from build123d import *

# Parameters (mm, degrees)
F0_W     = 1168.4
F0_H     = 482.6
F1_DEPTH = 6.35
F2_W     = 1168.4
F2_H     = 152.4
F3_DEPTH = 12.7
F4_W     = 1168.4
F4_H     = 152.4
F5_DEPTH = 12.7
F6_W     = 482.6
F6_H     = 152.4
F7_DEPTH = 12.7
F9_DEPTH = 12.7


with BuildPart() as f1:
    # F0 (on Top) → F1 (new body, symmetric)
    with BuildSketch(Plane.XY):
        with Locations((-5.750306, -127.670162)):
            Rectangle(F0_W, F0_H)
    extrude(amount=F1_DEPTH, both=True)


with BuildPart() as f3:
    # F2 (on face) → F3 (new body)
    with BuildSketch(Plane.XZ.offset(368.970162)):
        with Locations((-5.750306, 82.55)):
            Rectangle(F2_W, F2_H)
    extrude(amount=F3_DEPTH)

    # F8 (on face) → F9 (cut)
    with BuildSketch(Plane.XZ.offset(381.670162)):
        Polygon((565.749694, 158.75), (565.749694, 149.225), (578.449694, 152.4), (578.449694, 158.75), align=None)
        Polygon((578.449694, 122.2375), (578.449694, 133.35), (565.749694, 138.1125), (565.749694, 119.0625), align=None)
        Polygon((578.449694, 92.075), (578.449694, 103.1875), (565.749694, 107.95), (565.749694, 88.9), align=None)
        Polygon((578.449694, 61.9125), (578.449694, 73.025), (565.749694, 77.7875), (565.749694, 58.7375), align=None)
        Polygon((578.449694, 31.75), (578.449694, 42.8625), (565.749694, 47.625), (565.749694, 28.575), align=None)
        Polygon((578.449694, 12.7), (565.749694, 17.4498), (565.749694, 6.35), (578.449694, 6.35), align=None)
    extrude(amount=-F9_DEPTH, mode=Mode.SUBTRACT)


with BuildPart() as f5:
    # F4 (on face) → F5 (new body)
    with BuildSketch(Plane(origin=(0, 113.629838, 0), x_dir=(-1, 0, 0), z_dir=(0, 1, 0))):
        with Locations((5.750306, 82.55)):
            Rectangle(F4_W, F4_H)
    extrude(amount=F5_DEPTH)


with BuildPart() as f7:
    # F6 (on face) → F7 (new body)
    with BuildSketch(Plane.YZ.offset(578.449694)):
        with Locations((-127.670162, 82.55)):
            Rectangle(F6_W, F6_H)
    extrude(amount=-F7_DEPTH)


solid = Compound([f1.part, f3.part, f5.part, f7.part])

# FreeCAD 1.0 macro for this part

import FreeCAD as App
import Part
import Sketcher
from FreeCAD import Vector
Q = App.Units.Quantity


def add_polygon(sketch, points):
    """Adds a closed chain of lines whose ends are joined by coincident constraints."""
    first, n = sketch.GeometryCount, len(points)
    for a, b in zip(points, points[1:] + points[:1]):
        sketch.addGeometry(Part.LineSegment(App.Vector(*a, 0), App.Vector(*b, 0)), False)
    for i in range(n):
        sketch.addConstraint(Sketcher.Constraint("Coincident", first + i, 2, first + (i + 1) % n, 1))

doc = App.newDocument("Part")
params = doc.addObject("Spreadsheet::Sheet", "Params")
for row, (alias, value) in enumerate([
    ("sketch1_width", "46 in"),
    ("sketch1_height", "19 in"),
    ("pad1_length", "0.5 in"),
    ("sketch2_width", "46 in"),
    ("sketch2_height", "6 in"),
    ("pad2_length", "0.5 in"),
    ("sketch3_width", "0.5 in"),
    ("sketch3_height", "0.25 in"),
    ("sketch3_height2", "0.75 in"),
    ("sketch3_height3", "0.375 in"),
    ("sketch3_height4", "0.437 in"),
    ("pocket1_length", "0.5 in"),
    ("sketch4_width", "46 in"),
    ("sketch4_height", "6 in"),
    ("pad3_length", "0.5 in"),
    ("sketch5_width", "19 in"),
    ("sketch5_height", "6 in"),
    ("pad4_length", "0.5 in"),
], start=1):
    params.set(f"A{row}", alias)
    params.set(f"B{row}", "=" + value)
    params.setAlias(f"B{row}", alias)

body = doc.addObject("PartDesign::Body", "Body")

sketch1 = body.newObject("Sketcher::SketchObject", "Sketch")
sketch1.AttachmentSupport = (doc.getObject("XY_Plane"), [""])
sketch1.MapMode = "FlatFace"
add_polygon(sketch1, [(-590, 114), (-590, -369), (578, -369), (578, 114)])
sketch1.addConstraint(Sketcher.Constraint("Vertical", 0))
sketch1.addConstraint(Sketcher.Constraint("Horizontal", 1))
sketch1.addConstraint(Sketcher.Constraint("Vertical", 2))
sketch1.addConstraint(Sketcher.Constraint("Horizontal", 3))
sketch1.addConstraint(Sketcher.Constraint("DistanceX", 1, 1, 1, 2, Q("46 in")))
sketch1.addConstraint(Sketcher.Constraint("DistanceY", 0, 2, 0, 1, Q("19 in")))
sketch1.addConstraint(Sketcher.Constraint("DistanceY", 0, 2, -1, 1, Q("368.970162 mm")))
sketch1.addConstraint(Sketcher.Constraint("DistanceX", 0, 2, -1, 1, Q("589.950306 mm")))
sketch1.setExpression("Constraints[8]", "Params.sketch1_width")
sketch1.setExpression("Constraints[9]", "Params.sketch1_height")
pad1 = body.newObject("PartDesign::Pad", "Pad")
pad1.Profile = sketch1
pad1.setExpression("Length", "Params.pad1_length")
pad1.Midplane = True
body2 = doc.addObject("PartDesign::Body", "Body001")

sketch2 = body2.newObject("Sketcher::SketchObject", "Sketch001")
sketch2.AttachmentSupport = (doc.getObject("XZ_Plane001"), [""])
sketch2.MapMode = "FlatFace"
sketch2.AttachmentOffset = App.Placement(Vector(0, 0, 368.970162), App.Rotation())
add_polygon(sketch2, [(-590, 159), (-590, 6), (578, 6), (578, 159)])
sketch2.addConstraint(Sketcher.Constraint("Vertical", 0))
sketch2.addConstraint(Sketcher.Constraint("Horizontal", 1))
sketch2.addConstraint(Sketcher.Constraint("Vertical", 2))
sketch2.addConstraint(Sketcher.Constraint("Horizontal", 3))
sketch2.addConstraint(Sketcher.Constraint("DistanceX", 1, 1, 1, 2, Q("46 in")))
sketch2.addConstraint(Sketcher.Constraint("DistanceY", 0, 2, 0, 1, Q("6 in")))
sketch2.addConstraint(Sketcher.Constraint("DistanceY", -1, 1, 0, 2, Q("0.25 in")))
sketch2.addConstraint(Sketcher.Constraint("DistanceX", 0, 2, -1, 1, Q("589.950306 mm")))
sketch2.setExpression("Constraints[8]", "Params.sketch2_width")
sketch2.setExpression("Constraints[9]", "Params.sketch2_height")
pad2 = body2.newObject("PartDesign::Pad", "Pad001")
pad2.Profile = sketch2
pad2.setExpression("Length", "Params.pad2_length")

sketch3 = body2.newObject("Sketcher::SketchObject", "Sketch002")
sketch3.AttachmentSupport = (doc.getObject("XZ_Plane001"), [""])
sketch3.MapMode = "FlatFace"
sketch3.AttachmentOffset = App.Placement(Vector(0, 0, 381.670162), App.Rotation())
add_polygon(sketch3, [(566, 159), (566, 149), (578, 152), (578, 159)])
add_polygon(sketch3, [(578, 122), (578, 133), (566, 138), (566, 119)])
add_polygon(sketch3, [(578, 92), (578, 103), (566, 108), (566, 89)])
add_polygon(sketch3, [(578, 62), (578, 73), (566, 78), (566, 59)])
add_polygon(sketch3, [(578, 32), (578, 43), (566, 48), (566, 29)])
add_polygon(sketch3, [(578, 13), (566, 17), (566, 6), (578, 6)])
sketch3.addConstraint(Sketcher.Constraint("Vertical", 0))
sketch3.addConstraint(Sketcher.Constraint("Vertical", 2))
sketch3.addConstraint(Sketcher.Constraint("Horizontal", 3))
sketch3.addConstraint(Sketcher.Constraint("Vertical", 4))
sketch3.addConstraint(Sketcher.Constraint("Vertical", 6))
sketch3.addConstraint(Sketcher.Constraint("Vertical", 8))
sketch3.addConstraint(Sketcher.Constraint("Vertical", 10))
sketch3.addConstraint(Sketcher.Constraint("Vertical", 12))
sketch3.addConstraint(Sketcher.Constraint("Vertical", 14))
sketch3.addConstraint(Sketcher.Constraint("Vertical", 16))
sketch3.addConstraint(Sketcher.Constraint("Vertical", 18))
sketch3.addConstraint(Sketcher.Constraint("Vertical", 21))
sketch3.addConstraint(Sketcher.Constraint("Horizontal", 22))
sketch3.addConstraint(Sketcher.Constraint("Vertical", 23))
sketch3.addConstraint(Sketcher.Constraint("Parallel", 1, 7))
sketch3.addConstraint(Sketcher.Constraint("Parallel", 5, 9))
sketch3.addConstraint(Sketcher.Constraint("Parallel", 7, 11))
sketch3.addConstraint(Sketcher.Constraint("Parallel", 9, 13))
sketch3.addConstraint(Sketcher.Constraint("Parallel", 11, 15))
sketch3.addConstraint(Sketcher.Constraint("Parallel", 13, 17))
sketch3.addConstraint(Sketcher.Constraint("Parallel", 15, 19))
sketch3.addConstraint(Sketcher.Constraint("Vertical", 2, 2, 4, 2))
sketch3.addConstraint(Sketcher.Constraint("Vertical", 3, 2, 5, 2))
sketch3.addConstraint(Sketcher.Constraint("Vertical", 7, 2, 8, 2))
sketch3.addConstraint(Sketcher.Constraint("Vertical", 6, 2, 9, 2))
sketch3.addConstraint(Sketcher.Constraint("Vertical", 11, 2, 12, 2))
sketch3.addConstraint(Sketcher.Constraint("Vertical", 10, 2, 13, 2))
sketch3.addConstraint(Sketcher.Constraint("Vertical", 15, 2, 16, 2))
sketch3.addConstraint(Sketcher.Constraint("Vertical", 14, 2, 17, 2))
sketch3.addConstraint(Sketcher.Constraint("Vertical", 18, 2, 20, 2))
sketch3.addConstraint(Sketcher.Constraint("Vertical", 19, 2, 22, 2))
sketch3.addConstraint(Sketcher.Constraint("Equal", 4, 8))
sketch3.addConstraint(Sketcher.Constraint("Equal", 8, 12))
sketch3.addConstraint(Sketcher.Constraint("Equal", 12, 16))
sketch3.addConstraint(Sketcher.Constraint("Equal", 2, 23))
sketch3.addConstraint(Sketcher.Constraint("DistanceX", 3, 2, 3, 1, Q("0.5 in")))
sketch3.addConstraint(Sketcher.Constraint("DistanceY", -1, 1, 1, 2, Q("6 in")))
sketch3.addConstraint(Sketcher.Constraint("DistanceY", 4, 2, 2, 2, Q("1 in")))
sketch3.addConstraint(Sketcher.Constraint("DistanceY", 9, 2, 4, 2, Q("1 in")))
sketch3.addConstraint(Sketcher.Constraint("DistanceY", 13, 2, 8, 2, Q("1 in")))
sketch3.addConstraint(Sketcher.Constraint("DistanceY", 17, 2, 12, 2, Q("1 in")))
sketch3.addConstraint(Sketcher.Constraint("DistanceY", 21, 2, 19, 2, Q("1 in")))
sketch3.addConstraint(Sketcher.Constraint("DistanceY", 2, 1, 2, 2, Q("0.25 in")))
sketch3.addConstraint(Sketcher.Constraint("DistanceY", 6, 2, 6, 1, Q("0.75 in")))
sketch3.addConstraint(Sketcher.Constraint("DistanceY", -1, 1, 23, 2, Q("0.5 in")))
sketch3.addConstraint(Sketcher.Constraint("DistanceY", 0, 2, 0, 1, Q("0.375 in")))
sketch3.addConstraint(Sketcher.Constraint("DistanceY", 21, 2, 21, 1, Q("0.437 in")))
sketch3.addConstraint(Sketcher.Constraint("DistanceX", -1, 1, 0, 2, Q("565.749694 mm")))
sketch3.setExpression("Constraints[59]", "Params.sketch3_width")
sketch3.setExpression("Constraints[66]", "Params.sketch3_height")
sketch3.setExpression("Constraints[67]", "Params.sketch3_height2")
sketch3.setExpression("Constraints[69]", "Params.sketch3_height3")
sketch3.setExpression("Constraints[70]", "Params.sketch3_height4")
pocket1 = body2.newObject("PartDesign::Pocket", "Pocket")
pocket1.Profile = sketch3
pocket1.setExpression("Length", "Params.pocket1_length")
body3 = doc.addObject("PartDesign::Body", "Body002")

sketch4 = body3.newObject("Sketcher::SketchObject", "Sketch003")
sketch4.AttachmentSupport = (doc.getObject("XZ_Plane002"), [""])
sketch4.MapMode = "FlatFace"
sketch4.AttachmentOffset = App.Placement(Vector(0, 0, -113.629838), App.Rotation())
add_polygon(sketch4, [(578, 159), (578, 6), (-590, 6), (-590, 159)])
sketch4.addConstraint(Sketcher.Constraint("Vertical", 0))
sketch4.addConstraint(Sketcher.Constraint("Horizontal", 1))
sketch4.addConstraint(Sketcher.Constraint("Vertical", 2))
sketch4.addConstraint(Sketcher.Constraint("Horizontal", 3))
sketch4.addConstraint(Sketcher.Constraint("DistanceX", 1, 2, 1, 1, Q("46 in")))
sketch4.addConstraint(Sketcher.Constraint("DistanceY", 0, 2, 0, 1, Q("6 in")))
sketch4.addConstraint(Sketcher.Constraint("DistanceY", -1, 1, 0, 2, Q("0.25 in")))
sketch4.addConstraint(Sketcher.Constraint("DistanceX", -1, 1, 0, 2, Q("578.449694 mm")))
sketch4.setExpression("Constraints[8]", "Params.sketch4_width")
sketch4.setExpression("Constraints[9]", "Params.sketch4_height")
pad3 = body3.newObject("PartDesign::Pad", "Pad002")
pad3.Profile = sketch4
pad3.setExpression("Length", "Params.pad3_length")
pad3.Reversed = True
body4 = doc.addObject("PartDesign::Body", "Body003")

sketch5 = body4.newObject("Sketcher::SketchObject", "Sketch004")
sketch5.AttachmentSupport = (doc.getObject("YZ_Plane003"), [""])
sketch5.MapMode = "FlatFace"
sketch5.AttachmentOffset = App.Placement(Vector(0, 0, 578.449694), App.Rotation())
add_polygon(sketch5, [(-369, 159), (-369, 6), (114, 6), (114, 159)])
sketch5.addConstraint(Sketcher.Constraint("Vertical", 0))
sketch5.addConstraint(Sketcher.Constraint("Horizontal", 1))
sketch5.addConstraint(Sketcher.Constraint("Vertical", 2))
sketch5.addConstraint(Sketcher.Constraint("Horizontal", 3))
sketch5.addConstraint(Sketcher.Constraint("DistanceX", 1, 1, 1, 2, Q("19 in")))
sketch5.addConstraint(Sketcher.Constraint("DistanceY", 0, 2, 0, 1, Q("6 in")))
sketch5.addConstraint(Sketcher.Constraint("DistanceY", -1, 1, 0, 2, Q("0.25 in")))
sketch5.addConstraint(Sketcher.Constraint("DistanceX", 0, 2, -1, 1, Q("368.970162 mm")))
sketch5.setExpression("Constraints[8]", "Params.sketch5_width")
sketch5.setExpression("Constraints[9]", "Params.sketch5_height")
pad4 = body4.newObject("PartDesign::Pad", "Pad003")
pad4.Profile = sketch5
pad4.setExpression("Length", "Params.pad4_length")
pad4.Reversed = True

doc.recompute()
